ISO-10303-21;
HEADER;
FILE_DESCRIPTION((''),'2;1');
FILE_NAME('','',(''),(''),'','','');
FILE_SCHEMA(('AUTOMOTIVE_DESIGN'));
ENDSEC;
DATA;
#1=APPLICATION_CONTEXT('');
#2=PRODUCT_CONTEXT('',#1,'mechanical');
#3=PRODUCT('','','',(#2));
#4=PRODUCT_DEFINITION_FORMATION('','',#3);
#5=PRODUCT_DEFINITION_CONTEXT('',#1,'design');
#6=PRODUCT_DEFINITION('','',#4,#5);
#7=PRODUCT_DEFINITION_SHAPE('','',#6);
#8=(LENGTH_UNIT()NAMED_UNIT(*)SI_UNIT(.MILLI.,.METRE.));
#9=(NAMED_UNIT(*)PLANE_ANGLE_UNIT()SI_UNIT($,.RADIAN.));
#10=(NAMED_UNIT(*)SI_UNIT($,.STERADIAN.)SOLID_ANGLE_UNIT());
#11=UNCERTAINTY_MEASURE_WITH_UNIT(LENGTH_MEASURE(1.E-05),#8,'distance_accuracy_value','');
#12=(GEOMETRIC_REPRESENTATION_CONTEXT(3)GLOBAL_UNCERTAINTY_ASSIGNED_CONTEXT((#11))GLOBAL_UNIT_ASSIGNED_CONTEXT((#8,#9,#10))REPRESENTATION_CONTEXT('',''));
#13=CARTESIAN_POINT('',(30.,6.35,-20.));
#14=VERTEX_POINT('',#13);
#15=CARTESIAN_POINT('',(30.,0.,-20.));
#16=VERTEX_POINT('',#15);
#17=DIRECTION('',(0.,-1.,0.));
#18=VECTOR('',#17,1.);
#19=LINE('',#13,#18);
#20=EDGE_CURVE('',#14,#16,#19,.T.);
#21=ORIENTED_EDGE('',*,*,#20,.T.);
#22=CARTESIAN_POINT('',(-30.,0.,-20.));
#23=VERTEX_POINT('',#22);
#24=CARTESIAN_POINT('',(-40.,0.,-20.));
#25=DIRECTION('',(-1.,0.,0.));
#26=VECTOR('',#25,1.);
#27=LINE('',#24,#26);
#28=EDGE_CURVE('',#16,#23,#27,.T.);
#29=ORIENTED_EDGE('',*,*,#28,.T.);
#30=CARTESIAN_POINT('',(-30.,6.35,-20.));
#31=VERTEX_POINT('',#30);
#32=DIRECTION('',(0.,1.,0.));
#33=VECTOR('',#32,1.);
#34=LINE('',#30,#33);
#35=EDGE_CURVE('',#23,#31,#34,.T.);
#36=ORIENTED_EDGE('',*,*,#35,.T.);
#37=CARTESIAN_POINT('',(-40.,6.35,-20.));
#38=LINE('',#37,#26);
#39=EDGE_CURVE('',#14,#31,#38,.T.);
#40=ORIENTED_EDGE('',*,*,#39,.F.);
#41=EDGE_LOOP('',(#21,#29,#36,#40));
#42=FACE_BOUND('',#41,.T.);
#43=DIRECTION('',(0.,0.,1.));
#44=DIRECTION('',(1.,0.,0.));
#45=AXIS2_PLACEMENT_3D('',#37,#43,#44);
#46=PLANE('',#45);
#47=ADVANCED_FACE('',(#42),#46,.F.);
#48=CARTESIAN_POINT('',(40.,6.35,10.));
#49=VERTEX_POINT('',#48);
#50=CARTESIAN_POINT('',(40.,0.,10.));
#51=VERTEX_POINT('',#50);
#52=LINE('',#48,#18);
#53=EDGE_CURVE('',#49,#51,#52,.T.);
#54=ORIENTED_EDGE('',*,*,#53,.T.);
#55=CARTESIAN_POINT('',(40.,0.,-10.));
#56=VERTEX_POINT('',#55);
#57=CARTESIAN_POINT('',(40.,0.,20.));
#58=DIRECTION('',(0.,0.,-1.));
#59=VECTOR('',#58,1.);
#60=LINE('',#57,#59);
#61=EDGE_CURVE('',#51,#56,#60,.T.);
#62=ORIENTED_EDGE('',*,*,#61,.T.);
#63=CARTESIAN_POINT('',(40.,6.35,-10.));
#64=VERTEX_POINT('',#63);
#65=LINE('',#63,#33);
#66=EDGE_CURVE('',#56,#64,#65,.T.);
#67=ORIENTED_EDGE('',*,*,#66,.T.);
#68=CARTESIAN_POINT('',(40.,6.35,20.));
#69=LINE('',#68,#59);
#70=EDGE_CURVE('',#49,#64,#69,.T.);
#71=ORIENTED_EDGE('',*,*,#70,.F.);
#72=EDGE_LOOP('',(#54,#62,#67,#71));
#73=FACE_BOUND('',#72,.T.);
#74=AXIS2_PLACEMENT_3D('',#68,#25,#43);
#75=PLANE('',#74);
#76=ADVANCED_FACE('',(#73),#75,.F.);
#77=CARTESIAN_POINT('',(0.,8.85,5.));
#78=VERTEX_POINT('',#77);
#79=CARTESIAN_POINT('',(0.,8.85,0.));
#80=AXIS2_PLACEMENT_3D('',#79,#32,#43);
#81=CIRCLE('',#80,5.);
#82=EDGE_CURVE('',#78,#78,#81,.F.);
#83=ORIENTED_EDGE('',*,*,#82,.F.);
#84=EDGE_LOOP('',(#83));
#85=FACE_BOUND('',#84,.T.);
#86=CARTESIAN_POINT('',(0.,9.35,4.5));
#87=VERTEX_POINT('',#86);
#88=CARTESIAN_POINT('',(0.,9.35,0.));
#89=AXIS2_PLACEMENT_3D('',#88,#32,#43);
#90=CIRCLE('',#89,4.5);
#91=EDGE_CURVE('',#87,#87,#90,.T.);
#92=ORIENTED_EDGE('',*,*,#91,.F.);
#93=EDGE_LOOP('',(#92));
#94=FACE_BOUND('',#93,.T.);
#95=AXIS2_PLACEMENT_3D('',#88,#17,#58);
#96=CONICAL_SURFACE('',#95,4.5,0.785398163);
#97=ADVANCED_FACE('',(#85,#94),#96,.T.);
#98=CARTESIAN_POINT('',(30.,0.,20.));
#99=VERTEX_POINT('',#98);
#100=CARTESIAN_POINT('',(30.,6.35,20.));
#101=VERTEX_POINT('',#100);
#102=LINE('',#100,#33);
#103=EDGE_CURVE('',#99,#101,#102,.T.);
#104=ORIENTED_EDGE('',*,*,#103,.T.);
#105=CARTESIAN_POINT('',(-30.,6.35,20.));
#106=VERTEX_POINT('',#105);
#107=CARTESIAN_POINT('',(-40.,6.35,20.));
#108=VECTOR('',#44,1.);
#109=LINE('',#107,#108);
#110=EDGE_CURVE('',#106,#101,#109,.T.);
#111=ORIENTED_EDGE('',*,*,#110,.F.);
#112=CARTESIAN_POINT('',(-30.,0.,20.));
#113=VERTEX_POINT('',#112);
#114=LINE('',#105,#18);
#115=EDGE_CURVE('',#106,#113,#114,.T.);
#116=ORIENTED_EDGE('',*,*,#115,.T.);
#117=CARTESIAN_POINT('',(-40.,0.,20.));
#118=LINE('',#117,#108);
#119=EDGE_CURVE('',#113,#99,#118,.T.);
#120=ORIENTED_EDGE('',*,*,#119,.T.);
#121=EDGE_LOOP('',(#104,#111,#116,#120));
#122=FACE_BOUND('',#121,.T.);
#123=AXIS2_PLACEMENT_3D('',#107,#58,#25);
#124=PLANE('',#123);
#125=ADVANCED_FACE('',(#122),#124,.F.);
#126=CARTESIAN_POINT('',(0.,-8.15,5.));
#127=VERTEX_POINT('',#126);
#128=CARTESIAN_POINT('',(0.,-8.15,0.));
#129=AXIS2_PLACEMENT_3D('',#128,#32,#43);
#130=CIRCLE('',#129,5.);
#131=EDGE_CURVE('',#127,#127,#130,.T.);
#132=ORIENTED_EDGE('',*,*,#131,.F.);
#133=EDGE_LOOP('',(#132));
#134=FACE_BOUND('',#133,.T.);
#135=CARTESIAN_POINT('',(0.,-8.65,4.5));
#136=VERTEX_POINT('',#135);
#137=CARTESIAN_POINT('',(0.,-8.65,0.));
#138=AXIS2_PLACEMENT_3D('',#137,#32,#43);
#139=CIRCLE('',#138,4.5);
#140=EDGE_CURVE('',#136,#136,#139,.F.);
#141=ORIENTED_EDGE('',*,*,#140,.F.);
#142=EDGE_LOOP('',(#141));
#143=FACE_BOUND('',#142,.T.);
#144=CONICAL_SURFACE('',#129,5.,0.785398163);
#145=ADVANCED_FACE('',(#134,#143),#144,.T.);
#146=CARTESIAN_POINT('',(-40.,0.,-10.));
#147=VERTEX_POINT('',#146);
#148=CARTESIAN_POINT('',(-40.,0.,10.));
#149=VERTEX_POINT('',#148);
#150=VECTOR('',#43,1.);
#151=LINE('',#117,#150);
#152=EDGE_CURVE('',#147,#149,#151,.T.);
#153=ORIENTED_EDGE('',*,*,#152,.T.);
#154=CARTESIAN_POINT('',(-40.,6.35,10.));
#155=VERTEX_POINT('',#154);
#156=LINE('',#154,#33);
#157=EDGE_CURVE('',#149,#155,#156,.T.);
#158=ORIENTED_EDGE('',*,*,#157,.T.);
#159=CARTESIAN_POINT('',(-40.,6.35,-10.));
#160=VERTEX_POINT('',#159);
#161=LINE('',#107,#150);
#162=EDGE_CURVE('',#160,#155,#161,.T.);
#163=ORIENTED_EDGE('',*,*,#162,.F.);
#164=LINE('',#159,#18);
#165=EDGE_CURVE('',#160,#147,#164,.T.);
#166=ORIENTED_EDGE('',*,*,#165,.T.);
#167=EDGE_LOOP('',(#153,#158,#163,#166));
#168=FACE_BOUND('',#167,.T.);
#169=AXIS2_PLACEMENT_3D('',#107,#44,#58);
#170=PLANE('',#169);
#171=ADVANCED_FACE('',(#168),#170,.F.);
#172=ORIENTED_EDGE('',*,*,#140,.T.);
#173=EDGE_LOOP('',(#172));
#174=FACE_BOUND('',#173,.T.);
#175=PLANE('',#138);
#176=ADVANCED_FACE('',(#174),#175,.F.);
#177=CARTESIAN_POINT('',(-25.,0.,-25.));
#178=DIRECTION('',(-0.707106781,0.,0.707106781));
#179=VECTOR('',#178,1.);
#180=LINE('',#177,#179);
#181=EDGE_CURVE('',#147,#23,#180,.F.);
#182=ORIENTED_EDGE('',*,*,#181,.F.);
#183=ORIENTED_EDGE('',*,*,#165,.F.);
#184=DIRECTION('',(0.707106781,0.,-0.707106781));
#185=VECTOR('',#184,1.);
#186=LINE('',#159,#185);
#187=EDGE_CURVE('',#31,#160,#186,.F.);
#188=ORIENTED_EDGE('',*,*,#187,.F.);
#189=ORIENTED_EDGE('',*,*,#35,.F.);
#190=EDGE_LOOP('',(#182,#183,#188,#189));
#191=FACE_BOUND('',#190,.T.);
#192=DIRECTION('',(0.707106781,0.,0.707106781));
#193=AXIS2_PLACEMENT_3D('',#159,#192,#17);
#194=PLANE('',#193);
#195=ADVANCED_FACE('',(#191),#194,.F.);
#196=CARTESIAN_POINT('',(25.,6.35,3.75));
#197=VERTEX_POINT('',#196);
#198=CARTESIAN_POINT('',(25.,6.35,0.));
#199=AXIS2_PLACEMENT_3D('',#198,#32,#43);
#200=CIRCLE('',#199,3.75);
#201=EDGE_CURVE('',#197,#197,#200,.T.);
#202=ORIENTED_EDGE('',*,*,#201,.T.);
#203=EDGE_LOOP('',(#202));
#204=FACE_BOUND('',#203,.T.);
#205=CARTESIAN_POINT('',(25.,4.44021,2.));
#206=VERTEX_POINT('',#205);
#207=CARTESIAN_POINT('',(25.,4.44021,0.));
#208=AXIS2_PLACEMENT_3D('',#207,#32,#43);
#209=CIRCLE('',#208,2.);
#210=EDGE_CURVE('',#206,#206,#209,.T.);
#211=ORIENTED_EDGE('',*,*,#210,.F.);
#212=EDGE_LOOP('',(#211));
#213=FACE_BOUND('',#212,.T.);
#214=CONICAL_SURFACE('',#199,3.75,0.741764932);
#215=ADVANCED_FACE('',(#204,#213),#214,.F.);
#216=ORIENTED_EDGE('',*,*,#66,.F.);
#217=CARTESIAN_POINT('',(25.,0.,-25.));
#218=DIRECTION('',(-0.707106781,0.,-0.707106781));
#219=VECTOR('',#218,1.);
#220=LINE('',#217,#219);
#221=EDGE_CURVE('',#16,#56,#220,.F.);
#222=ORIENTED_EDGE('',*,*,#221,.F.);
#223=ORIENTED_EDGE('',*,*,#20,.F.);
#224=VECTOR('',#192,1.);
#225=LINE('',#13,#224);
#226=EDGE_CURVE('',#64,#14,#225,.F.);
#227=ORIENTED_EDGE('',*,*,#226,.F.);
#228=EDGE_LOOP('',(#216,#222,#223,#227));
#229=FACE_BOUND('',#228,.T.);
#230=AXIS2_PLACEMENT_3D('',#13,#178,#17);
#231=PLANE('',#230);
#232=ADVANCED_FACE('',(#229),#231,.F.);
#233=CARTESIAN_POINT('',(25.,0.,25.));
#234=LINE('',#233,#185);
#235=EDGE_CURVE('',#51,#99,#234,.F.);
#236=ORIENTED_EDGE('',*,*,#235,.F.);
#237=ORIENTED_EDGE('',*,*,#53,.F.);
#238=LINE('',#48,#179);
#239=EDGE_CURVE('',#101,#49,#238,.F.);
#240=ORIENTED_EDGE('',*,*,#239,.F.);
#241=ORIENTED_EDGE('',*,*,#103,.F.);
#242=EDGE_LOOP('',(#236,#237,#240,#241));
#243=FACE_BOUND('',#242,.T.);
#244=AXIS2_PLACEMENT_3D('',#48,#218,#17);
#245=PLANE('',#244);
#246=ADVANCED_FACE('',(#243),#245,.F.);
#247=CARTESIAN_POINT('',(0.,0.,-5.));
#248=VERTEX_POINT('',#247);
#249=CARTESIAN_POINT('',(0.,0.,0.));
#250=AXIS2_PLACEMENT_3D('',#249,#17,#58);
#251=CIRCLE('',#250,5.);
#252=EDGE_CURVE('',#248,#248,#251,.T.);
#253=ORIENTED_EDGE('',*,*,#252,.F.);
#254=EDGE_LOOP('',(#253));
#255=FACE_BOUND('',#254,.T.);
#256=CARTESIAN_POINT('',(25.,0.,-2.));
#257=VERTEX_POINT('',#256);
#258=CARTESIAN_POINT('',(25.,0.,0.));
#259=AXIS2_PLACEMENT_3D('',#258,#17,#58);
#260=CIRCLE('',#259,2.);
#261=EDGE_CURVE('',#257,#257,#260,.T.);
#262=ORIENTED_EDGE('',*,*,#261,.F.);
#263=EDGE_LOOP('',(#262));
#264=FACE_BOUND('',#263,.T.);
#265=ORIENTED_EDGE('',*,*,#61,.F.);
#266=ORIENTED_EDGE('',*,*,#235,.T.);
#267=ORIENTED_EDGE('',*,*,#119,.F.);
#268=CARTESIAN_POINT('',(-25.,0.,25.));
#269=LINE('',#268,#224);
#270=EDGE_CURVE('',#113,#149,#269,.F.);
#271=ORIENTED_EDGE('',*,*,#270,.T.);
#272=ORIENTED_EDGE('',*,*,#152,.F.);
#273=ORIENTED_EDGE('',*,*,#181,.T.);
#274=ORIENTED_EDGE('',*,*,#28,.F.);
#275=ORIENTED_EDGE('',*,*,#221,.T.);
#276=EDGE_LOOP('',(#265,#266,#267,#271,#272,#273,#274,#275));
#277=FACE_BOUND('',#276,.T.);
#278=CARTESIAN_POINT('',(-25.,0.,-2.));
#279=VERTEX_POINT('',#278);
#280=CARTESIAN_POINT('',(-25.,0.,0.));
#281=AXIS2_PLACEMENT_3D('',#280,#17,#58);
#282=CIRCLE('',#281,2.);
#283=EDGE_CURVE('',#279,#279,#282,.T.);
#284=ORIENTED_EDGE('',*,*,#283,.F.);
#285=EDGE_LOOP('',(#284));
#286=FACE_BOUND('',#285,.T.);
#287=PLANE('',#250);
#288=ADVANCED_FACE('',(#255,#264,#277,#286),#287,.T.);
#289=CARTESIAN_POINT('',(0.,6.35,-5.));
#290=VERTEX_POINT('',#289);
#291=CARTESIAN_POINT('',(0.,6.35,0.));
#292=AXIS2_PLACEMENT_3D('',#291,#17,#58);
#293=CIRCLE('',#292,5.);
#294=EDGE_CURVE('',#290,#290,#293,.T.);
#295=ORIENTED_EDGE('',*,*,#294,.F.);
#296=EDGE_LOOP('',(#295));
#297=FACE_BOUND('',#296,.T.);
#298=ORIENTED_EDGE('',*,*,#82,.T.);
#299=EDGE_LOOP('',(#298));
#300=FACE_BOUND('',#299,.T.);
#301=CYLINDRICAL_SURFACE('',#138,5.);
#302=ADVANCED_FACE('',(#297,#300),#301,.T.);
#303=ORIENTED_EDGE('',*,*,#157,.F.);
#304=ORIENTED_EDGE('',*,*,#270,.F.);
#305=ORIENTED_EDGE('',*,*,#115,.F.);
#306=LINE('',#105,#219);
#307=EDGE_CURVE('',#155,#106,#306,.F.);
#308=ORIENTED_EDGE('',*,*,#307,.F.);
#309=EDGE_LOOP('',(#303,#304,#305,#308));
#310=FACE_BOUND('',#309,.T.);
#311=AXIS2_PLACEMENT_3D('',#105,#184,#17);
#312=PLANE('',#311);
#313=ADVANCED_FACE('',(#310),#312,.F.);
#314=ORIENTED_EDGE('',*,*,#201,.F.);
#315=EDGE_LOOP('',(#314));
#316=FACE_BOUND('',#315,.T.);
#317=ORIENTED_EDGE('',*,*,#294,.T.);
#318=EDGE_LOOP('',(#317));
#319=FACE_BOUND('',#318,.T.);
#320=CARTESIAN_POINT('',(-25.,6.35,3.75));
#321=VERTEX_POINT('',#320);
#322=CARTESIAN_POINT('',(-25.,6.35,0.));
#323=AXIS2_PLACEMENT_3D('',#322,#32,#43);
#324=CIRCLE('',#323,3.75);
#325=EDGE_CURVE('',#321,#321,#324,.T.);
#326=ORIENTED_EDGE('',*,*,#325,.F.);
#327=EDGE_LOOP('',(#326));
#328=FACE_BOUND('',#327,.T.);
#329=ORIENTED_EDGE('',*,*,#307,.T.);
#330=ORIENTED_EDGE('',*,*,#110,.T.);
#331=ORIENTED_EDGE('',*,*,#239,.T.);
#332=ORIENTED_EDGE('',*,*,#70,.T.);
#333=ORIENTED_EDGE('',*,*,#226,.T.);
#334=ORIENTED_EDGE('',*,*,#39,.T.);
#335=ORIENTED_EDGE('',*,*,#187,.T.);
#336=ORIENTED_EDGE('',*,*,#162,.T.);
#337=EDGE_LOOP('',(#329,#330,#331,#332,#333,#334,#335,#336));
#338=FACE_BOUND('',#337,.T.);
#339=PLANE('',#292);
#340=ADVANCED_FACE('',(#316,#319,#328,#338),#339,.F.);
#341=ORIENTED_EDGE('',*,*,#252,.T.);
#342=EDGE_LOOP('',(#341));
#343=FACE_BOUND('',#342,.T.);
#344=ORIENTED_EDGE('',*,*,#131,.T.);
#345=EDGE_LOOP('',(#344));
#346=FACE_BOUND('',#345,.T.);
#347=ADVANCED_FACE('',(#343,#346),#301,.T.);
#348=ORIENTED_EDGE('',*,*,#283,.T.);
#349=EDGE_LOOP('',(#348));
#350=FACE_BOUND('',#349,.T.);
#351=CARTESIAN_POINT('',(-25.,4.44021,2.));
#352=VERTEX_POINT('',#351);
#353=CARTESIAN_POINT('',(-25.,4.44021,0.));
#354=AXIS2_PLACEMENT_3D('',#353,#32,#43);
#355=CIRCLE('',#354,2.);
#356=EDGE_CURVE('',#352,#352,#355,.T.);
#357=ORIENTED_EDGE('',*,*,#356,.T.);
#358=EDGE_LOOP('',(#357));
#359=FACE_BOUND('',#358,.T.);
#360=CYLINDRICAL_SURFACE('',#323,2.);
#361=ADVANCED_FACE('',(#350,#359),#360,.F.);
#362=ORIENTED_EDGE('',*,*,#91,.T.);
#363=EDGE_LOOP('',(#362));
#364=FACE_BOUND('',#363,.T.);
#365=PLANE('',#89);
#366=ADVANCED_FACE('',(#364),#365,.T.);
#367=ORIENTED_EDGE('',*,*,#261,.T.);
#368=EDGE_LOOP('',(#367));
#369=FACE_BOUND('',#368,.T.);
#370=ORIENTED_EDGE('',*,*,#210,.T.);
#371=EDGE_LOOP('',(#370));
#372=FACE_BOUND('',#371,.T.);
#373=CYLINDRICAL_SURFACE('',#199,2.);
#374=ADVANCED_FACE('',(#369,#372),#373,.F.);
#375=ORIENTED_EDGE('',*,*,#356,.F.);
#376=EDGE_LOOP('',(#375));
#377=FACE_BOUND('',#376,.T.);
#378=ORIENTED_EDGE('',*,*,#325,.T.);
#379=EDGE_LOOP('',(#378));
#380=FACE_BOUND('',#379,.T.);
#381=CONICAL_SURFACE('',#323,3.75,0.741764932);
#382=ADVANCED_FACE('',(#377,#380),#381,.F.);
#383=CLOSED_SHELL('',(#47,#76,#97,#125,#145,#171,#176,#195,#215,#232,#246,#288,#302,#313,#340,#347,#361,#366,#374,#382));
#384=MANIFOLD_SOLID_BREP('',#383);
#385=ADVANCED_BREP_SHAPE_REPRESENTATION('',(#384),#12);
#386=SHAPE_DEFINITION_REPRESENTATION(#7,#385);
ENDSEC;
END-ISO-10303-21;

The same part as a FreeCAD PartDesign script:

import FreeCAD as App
import Part
import Sketcher

V = App.Vector


def edges_at(feature, points):
    """Names of the edges that pass closest to the given points."""
    edges = feature.Shape.Edges
    near = lambda p: min(range(len(edges)), key=lambda i: edges[i].distToShape(Part.Vertex(*p))[0])
    return sorted({f"Edge{near(p) + 1}" for p in points})


def add_polygon(sketch, points):
    """Adds a closed chain of lines whose ends are joined by coincident constraints."""
    first, n = sketch.GeometryCount, len(points)
    for a, b in zip(points, points[1:] + points[:1]):
        sketch.addGeometry(Part.LineSegment(App.Vector(*a, 0), App.Vector(*b, 0)), False)
    for i in range(n):
        sketch.addConstraint(Sketcher.Constraint("Coincident", first + i, 2, first + (i + 1) % n, 1))

doc = App.newDocument("Part")
body = doc.addObject("PartDesign::Body", "Body")

# Sketch on XZ plane
sketch1 = doc.addObject("Sketcher::SketchObject", "Sketch")
body.addObject(sketch1)
sketch1.AttachmentSupport = (doc.XZ_Plane, [""])
sketch1.MapMode = "FlatFace"
add_polygon(sketch1, [(-40, -20), (-40, 20), (40, 20), (40, -20)])  # lines 0-3
sketch1.addConstraint(Sketcher.Constraint("Vertical", 0))
sketch1.addConstraint(Sketcher.Constraint("Horizontal", 1))
sketch1.addConstraint(Sketcher.Constraint("Vertical", 2))
sketch1.addConstraint(Sketcher.Constraint("Horizontal", 3))
sketch1.addConstraint(Sketcher.Constraint("Symmetric", 0, 2, 2, 2, -1, 1))
sketch1.addConstraint(Sketcher.Constraint("DistanceX", 1, 1, 1, 2, 80.0))
sketch1.addConstraint(Sketcher.Constraint("DistanceY", 0, 1, 0, 2, 40.0))
pad1 = doc.addObject("PartDesign::Pad", "Pad")
body.addObject(pad1)
pad1.Profile = sketch1
pad1.Length = 6.35
pad1.Reversed = True

# Sketch on XZ plane
sketch2 = doc.addObject("Sketcher::SketchObject", "Sketch001")
body.addObject(sketch2)
sketch2.AttachmentSupport = (doc.XZ_Plane, [""])
sketch2.MapMode = "FlatFace"
sketch2.AttachmentOffset = App.Placement(V(0, 0, -6.35), App.Rotation())
sketch2.addGeometry(Part.Circle(V(-25, 0, 0), V(0, 0, 1), 2), False)
sketch2.addGeometry(Part.Circle(V(25, 0, 0), V(0, 0, 1), 2), False)
sketch2.addConstraint(Sketcher.Constraint("Equal", 0, 1))
sketch2.addConstraint(Sketcher.Constraint("Symmetric", 0, 3, 1, 3, -1, 1))
sketch2.addConstraint(Sketcher.Constraint("PointOnObject", 0, 3, -1))
sketch2.addConstraint(Sketcher.Constraint("Diameter", 0, 4.0))
sketch2.addConstraint(Sketcher.Constraint("DistanceX", 0, 3, -1, 1, 25.0))
doc.recompute()
hole = doc.addObject("PartDesign::Hole", "Hole")
body.addObject(hole)
hole.Profile = sketch2
hole.ThreadType = "None"
hole.Diameter = 4
hole.DepthType = "ThroughAll"
hole.HoleCutType = "Countersink"
hole.HoleCutDiameter = 7.5
hole.HoleCutCountersinkAngle = 85
hole.Reversed = True

# Sketch on XZ plane
sketch3 = doc.addObject("Sketcher::SketchObject", "Sketch002")
body.addObject(sketch3)
sketch3.AttachmentSupport = (doc.XZ_Plane, [""])
sketch3.MapMode = "FlatFace"
sketch3.AttachmentOffset = App.Placement(V(0, 0, -6.35), App.Rotation())
sketch3.addGeometry(Part.Circle(V(0, 0, 0), V(0, 0, 1), 5), False)
sketch3.addConstraint(Sketcher.Constraint("Coincident", 0, 3, -1, 1))
sketch3.addConstraint(Sketcher.Constraint("Diameter", 0, 10.0))
pad2 = doc.addObject("PartDesign::Pad", "Pad001")
body.addObject(pad2)
pad2.Profile = sketch3
pad2.Type = "TwoLengths"
pad2.Length = 3
pad2.Length2 = 15
pad2.Reversed = True
doc.recompute()

chamfer = doc.addObject("PartDesign::Chamfer", "Chamfer")
body.addObject(chamfer)
chamfer.Base = (pad2, edges_at(pad2, [
    (40, 3.175, 20),
    (-40, 3.175, 20),
    (-40, 3.175, -20),
    (40, 3.175, -20),
]))
chamfer.Size = 10
doc.recompute()

chamfer2 = doc.addObject("PartDesign::Chamfer", "Chamfer001")
body.addObject(chamfer2)
chamfer2.Base = (chamfer, edges_at(chamfer, [(0, -8.65, -5), (0, 9.35, -5)]))
chamfer2.Size = 0.5

doc.recompute()
